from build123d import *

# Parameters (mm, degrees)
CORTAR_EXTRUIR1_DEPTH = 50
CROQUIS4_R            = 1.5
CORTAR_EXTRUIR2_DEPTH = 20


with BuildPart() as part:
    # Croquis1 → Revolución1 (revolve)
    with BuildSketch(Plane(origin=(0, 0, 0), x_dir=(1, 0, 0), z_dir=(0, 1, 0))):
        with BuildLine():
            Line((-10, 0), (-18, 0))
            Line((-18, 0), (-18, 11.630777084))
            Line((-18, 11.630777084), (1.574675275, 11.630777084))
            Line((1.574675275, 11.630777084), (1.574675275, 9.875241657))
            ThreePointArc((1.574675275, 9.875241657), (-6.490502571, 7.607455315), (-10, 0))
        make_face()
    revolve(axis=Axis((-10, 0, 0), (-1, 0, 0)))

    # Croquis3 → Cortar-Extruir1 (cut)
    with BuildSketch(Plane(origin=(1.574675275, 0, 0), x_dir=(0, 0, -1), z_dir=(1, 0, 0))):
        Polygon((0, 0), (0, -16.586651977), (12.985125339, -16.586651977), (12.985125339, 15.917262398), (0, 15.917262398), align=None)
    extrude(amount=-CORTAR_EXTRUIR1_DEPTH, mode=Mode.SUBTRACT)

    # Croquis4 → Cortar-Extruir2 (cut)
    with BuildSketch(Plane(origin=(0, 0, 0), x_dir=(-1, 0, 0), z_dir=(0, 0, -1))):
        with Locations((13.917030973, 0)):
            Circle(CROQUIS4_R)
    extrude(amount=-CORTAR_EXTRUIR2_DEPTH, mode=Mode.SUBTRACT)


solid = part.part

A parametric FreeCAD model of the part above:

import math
import FreeCAD as App
import Part
import Sketcher

V = App.Vector


def add_polygon(sketch, points):
    """Adds a closed chain of lines whose ends are joined by coincident constraints."""
    first, n = sketch.GeometryCount, len(points)
    for a, b in zip(points, points[1:] + points[:1]):
        sketch.addGeometry(Part.LineSegment(App.Vector(*a, 0), App.Vector(*b, 0)), False)
    for i in range(n):
        sketch.addConstraint(Sketcher.Constraint("Coincident", first + i, 2, first + (i + 1) % n, 1))

doc = App.newDocument("Part")
body = doc.addObject("PartDesign::Body", "Body")

# Sketch on XZ plane
sketch1 = body.newObject("Sketcher::SketchObject", "Sketch")
sketch1.AttachmentSupport = (doc.getObject("XZ_Plane"), [""])
sketch1.MapMode = "FlatFace"
sketch1.addGeometry(Part.LineSegment(V(-18, 0, 0), V(-10, 0, 0)), False)
sketch1.addGeometry(Part.ArcOfCircle(Part.Circle(V(0, 0, 0), V(0, 0, 1), 10), math.radians(-180), math.radians(-81)), False)
sketch1.addGeometry(Part.LineSegment(V(1.6, -9.9, 0), V(1.6, -11.6, 0)), False)
sketch1.addGeometry(Part.LineSegment(V(1.6, -11.6, 0), V(-18, -11.6, 0)), False)
sketch1.addGeometry(Part.LineSegment(V(-18, -11.6, 0), V(-18, 0, 0)), False)
sketch1.addConstraint(Sketcher.Constraint("Coincident", 0, 2, 1, 1))
sketch1.addConstraint(Sketcher.Constraint("Coincident", 1, 2, 2, 1))
sketch1.addConstraint(Sketcher.Constraint("Coincident", 2, 2, 3, 1))
sketch1.addConstraint(Sketcher.Constraint("Coincident", 3, 2, 4, 1))
sketch1.addConstraint(Sketcher.Constraint("Coincident", 4, 2, 0, 1))
sketch1.addConstraint(Sketcher.Constraint("Horizontal", 0))
sketch1.addConstraint(Sketcher.Constraint("Vertical", 2))
sketch1.addConstraint(Sketcher.Constraint("Horizontal", 3))
sketch1.addConstraint(Sketcher.Constraint("Vertical", 4))
sketch1.addConstraint(Sketcher.Constraint("Coincident", 1, 3, -1, 1))
sketch1.addConstraint(Sketcher.Constraint("PointOnObject", 0, 2, -1))
sketch1.addConstraint(Sketcher.Constraint("Radius", 1, 10.0))
sketch1.addConstraint(Sketcher.Constraint("DistanceX", 0, 1, 0, 2, 8.0))
sketch1.addConstraint(Sketcher.Constraint("DistanceX", 3, 2, 3, 1, 19.574675))
sketch1.addConstraint(Sketcher.Constraint("DistanceY", 2, 2, 2, 1, 1.755535))
revolution = body.newObject("PartDesign::Revolution", "Revolution")
revolution.Profile = sketch1
revolution.ReferenceAxis = (sketch1, ["H_Axis"])
revolution.Angle = 360

# Sketch on YZ plane
sketch2 = body.newObject("Sketcher::SketchObject", "Sketch001")
sketch2.AttachmentSupport = (doc.getObject("YZ_Plane"), [""])
sketch2.MapMode = "FlatFace"
sketch2.AttachmentOffset = App.Placement(V(0, 0, 1.574675), App.Rotation())
add_polygon(sketch2, [(-17, 0), (-17, -13), (16, -13), (16, 0)])  # lines 0-3
sketch2.addConstraint(Sketcher.Constraint("Vertical", 0))
sketch2.addConstraint(Sketcher.Constraint("Horizontal", 1))
sketch2.addConstraint(Sketcher.Constraint("Vertical", 2))
sketch2.addConstraint(Sketcher.Constraint("Horizontal", 3))
sketch2.addConstraint(Sketcher.Constraint("PointOnObject", 2, 2, -1))
sketch2.addConstraint(Sketcher.Constraint("DistanceX", 1, 1, 1, 2, 32.503914))
sketch2.addConstraint(Sketcher.Constraint("DistanceY", 0, 2, 0, 1, 12.985125))
sketch2.addConstraint(Sketcher.Constraint("DistanceX", 0, 2, -1, 1, 16.586652))
pocket1 = body.newObject("PartDesign::Pocket", "Pocket")
pocket1.Profile = sketch2
pocket1.Length = 50

# Sketch on XY plane
sketch3 = body.newObject("Sketcher::SketchObject", "Sketch002")
sketch3.AttachmentSupport = (doc.getObject("XY_Plane"), [""])
sketch3.MapMode = "FlatFace"
sketch3.addGeometry(Part.Circle(V(-13.9, 0, 0), V(0, 0, 1), 1.5), False)
sketch3.addConstraint(Sketcher.Constraint("PointOnObject", 0, 3, -1))
sketch3.addConstraint(Sketcher.Constraint("Diameter", 0, 3.0))
sketch3.addConstraint(Sketcher.Constraint("DistanceX", 0, 3, -1, 1, 13.917031))
pocket2 = body.newObject("PartDesign::Pocket", "Pocket001")
pocket2.Profile = sketch3
pocket2.Length = 20
pocket2.Reversed = True

doc.recompute()
